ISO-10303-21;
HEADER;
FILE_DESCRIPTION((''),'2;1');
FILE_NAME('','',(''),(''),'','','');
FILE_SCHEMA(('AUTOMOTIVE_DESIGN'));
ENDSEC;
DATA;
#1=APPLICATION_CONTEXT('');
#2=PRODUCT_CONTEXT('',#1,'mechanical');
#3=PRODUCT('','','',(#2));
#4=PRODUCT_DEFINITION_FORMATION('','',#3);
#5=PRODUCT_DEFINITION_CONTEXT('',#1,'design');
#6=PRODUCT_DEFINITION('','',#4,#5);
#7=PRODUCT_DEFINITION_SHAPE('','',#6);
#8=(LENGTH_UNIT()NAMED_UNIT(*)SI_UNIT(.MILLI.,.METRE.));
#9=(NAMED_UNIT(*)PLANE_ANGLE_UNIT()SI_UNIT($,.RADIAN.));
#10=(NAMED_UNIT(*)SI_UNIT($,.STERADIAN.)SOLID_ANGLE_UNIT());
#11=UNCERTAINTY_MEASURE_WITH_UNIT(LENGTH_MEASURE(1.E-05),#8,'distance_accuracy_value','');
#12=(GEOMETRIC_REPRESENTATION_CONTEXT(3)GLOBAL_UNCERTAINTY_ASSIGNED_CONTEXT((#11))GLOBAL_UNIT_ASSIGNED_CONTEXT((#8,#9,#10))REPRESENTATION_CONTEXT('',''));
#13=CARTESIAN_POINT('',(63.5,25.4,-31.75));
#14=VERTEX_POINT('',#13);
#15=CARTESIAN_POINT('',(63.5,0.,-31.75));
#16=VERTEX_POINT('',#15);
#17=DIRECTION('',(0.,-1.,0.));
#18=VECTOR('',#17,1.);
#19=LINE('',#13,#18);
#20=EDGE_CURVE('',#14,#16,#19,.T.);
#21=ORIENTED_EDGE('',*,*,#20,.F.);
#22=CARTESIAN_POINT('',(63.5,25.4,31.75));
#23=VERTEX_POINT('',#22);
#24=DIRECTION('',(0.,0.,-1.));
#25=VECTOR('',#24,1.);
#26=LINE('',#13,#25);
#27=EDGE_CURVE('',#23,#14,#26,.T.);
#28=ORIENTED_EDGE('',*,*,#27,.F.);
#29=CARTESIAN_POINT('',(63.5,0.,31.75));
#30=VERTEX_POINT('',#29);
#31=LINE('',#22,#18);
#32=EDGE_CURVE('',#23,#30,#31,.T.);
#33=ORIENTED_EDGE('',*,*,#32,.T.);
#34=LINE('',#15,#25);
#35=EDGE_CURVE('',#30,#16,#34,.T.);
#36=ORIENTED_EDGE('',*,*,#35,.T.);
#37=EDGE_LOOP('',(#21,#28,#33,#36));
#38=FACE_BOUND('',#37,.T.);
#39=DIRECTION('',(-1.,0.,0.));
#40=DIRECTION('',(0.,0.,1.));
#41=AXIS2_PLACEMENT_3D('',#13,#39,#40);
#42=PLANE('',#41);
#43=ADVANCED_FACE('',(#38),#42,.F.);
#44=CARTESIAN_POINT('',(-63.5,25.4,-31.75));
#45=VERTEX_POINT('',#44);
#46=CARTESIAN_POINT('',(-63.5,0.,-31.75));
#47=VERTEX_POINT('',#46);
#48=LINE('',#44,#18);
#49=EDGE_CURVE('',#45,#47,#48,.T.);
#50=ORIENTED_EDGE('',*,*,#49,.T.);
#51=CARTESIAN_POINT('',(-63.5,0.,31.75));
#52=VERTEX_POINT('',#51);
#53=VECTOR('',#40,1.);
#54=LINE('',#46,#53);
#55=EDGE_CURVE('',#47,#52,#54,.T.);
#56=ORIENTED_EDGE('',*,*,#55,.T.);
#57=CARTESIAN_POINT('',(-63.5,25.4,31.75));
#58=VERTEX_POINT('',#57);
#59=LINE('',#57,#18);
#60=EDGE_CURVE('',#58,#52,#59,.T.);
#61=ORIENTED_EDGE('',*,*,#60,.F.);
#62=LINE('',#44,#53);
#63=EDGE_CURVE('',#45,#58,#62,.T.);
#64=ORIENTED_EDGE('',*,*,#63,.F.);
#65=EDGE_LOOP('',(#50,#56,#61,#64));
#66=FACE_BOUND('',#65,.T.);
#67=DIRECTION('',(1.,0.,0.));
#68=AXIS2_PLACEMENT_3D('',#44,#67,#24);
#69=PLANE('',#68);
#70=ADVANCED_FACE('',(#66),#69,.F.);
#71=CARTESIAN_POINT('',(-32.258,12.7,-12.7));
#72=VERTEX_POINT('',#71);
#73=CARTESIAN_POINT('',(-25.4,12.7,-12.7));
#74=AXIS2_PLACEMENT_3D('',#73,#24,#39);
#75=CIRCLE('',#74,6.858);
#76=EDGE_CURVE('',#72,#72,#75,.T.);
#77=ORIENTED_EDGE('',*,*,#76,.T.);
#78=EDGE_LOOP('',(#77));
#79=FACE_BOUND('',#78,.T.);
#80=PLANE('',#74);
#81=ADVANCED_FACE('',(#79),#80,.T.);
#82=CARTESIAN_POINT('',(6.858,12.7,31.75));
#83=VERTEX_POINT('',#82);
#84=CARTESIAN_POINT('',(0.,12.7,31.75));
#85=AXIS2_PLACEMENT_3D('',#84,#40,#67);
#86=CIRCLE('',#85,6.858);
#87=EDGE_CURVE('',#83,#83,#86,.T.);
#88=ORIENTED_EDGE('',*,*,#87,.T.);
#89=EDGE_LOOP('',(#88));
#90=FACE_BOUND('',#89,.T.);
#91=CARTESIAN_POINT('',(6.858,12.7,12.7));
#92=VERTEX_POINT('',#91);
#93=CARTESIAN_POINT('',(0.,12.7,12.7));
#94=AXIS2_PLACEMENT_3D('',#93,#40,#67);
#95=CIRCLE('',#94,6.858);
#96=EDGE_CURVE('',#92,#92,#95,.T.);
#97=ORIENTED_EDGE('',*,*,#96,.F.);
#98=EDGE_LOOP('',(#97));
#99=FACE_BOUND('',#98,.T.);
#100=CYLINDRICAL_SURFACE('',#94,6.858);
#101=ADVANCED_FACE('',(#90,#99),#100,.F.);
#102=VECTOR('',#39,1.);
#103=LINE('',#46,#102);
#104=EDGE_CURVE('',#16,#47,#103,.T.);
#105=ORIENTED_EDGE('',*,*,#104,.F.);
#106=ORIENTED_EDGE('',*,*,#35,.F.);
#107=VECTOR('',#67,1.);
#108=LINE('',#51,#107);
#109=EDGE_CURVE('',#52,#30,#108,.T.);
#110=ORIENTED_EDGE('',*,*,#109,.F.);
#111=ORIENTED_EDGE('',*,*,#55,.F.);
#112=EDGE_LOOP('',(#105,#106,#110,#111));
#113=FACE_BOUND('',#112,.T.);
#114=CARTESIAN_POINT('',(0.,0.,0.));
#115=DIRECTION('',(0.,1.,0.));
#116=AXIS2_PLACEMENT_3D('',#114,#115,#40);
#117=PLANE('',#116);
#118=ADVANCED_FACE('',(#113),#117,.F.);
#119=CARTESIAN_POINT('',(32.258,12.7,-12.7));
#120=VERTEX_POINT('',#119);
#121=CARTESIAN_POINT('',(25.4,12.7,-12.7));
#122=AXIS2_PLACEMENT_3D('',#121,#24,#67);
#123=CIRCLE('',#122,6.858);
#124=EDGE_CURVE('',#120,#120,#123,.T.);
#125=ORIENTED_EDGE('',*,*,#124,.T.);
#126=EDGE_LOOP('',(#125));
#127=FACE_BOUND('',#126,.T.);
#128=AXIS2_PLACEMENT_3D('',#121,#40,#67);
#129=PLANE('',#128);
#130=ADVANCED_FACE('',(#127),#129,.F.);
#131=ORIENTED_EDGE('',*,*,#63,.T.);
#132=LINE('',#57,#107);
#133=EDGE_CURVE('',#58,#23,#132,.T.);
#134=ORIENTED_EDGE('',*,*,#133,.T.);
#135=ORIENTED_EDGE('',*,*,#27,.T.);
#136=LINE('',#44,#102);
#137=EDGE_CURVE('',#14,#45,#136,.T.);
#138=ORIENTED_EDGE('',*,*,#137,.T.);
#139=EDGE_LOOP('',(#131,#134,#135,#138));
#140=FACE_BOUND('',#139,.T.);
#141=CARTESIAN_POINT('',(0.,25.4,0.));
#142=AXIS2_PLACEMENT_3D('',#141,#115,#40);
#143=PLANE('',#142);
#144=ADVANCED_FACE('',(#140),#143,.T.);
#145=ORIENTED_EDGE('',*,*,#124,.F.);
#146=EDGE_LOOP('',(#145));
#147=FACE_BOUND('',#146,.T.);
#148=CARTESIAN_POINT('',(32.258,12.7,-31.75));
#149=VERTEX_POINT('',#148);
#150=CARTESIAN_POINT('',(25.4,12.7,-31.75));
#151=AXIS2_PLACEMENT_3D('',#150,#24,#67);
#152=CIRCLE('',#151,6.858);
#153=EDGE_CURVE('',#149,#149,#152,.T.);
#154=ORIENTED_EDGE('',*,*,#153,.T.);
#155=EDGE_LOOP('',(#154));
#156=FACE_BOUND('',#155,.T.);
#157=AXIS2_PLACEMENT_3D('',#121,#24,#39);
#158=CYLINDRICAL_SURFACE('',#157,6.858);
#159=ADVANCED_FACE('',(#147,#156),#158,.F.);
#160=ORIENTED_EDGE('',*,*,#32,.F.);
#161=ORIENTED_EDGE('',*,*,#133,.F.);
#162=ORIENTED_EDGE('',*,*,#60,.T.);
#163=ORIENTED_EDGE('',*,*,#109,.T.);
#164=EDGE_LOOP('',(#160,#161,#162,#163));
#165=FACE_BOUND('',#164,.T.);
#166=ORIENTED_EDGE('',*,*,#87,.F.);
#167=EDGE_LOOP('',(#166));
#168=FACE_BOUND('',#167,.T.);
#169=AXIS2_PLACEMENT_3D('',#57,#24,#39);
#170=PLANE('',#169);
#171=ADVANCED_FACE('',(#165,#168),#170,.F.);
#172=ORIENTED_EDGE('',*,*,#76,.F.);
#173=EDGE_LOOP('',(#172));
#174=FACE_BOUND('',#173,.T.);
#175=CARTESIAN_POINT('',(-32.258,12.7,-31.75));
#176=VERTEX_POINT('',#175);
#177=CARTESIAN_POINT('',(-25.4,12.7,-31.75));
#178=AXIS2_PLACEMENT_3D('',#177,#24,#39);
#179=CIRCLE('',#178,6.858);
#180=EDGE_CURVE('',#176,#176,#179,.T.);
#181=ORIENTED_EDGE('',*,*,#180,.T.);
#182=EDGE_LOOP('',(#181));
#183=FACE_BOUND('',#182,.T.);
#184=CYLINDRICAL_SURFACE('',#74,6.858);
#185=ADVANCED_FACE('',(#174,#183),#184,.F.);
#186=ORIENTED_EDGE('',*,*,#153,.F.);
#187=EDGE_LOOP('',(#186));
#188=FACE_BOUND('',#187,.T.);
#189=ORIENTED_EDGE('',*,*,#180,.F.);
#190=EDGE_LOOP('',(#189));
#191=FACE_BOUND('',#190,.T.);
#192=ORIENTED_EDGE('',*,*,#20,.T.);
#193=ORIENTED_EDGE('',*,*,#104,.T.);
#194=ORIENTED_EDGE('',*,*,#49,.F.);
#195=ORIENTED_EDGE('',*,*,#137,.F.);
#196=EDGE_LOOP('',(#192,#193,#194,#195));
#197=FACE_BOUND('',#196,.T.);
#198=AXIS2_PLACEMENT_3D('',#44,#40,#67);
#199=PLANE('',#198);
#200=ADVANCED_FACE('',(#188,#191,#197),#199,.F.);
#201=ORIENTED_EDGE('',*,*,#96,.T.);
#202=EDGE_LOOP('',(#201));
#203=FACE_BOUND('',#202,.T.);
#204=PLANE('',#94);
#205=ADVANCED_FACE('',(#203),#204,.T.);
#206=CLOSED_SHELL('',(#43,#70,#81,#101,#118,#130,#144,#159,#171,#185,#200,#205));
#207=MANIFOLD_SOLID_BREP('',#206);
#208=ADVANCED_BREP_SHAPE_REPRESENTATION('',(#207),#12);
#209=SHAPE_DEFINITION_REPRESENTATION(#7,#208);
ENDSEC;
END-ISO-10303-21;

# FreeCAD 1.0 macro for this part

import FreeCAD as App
import Part
import Sketcher

V = App.Vector
Q = App.Units.Quantity

doc = App.newDocument("Part")
params = doc.addObject("Spreadsheet::Sheet", "Params")
for row, (alias, value) in enumerate([
    ("sketch1_width", "5 in"),
    ("sketch1_height", "2.5 in"),
    ("pad1_length", "1 in"),
    ("sketch2_diameter", "0.54 in"),
    ("pocket1_length", "0.75 in"),
    ("sketch3_diameter", "0.54 in"),
    ("pocket2_length", "0.75 in"),
], start=1):
    params.set(f"A{row}", alias)
    params.set(f"B{row}", "=" + value)
    params.setAlias(f"B{row}", alias)

body = doc.addObject("PartDesign::Body", "Body")

# Sketch on XZ plane
sketch1 = doc.addObject("Sketcher::SketchObject", "Sketch")
body.addObject(sketch1)
sketch1.AttachmentSupport = (doc.XZ_Plane, [""])
sketch1.MapMode = "FlatFace"
sketch1.addGeometry([
    Part.LineSegment(V(-64, -32, 0), V(-64, 32, 0)),
    Part.LineSegment(V(-64, 32, 0), V(64, 32, 0)),
    Part.LineSegment(V(64, 32, 0), V(64, -32, 0)),
    Part.LineSegment(V(64, -32, 0), V(-64, -32, 0)),
], False)
sketch1.addConstraint([
    Sketcher.Constraint("Coincident", 0, 2, 1, 1),
    Sketcher.Constraint("Coincident", 1, 2, 2, 1),
    Sketcher.Constraint("Coincident", 2, 2, 3, 1),
    Sketcher.Constraint("Coincident", 3, 2, 0, 1),
    Sketcher.Constraint("Vertical", 0),
    Sketcher.Constraint("Horizontal", 1),
    Sketcher.Constraint("Vertical", 2),
    Sketcher.Constraint("Horizontal", 3),
    Sketcher.Constraint("Symmetric", 0, 2, 2, 2, -1, 1),
    Sketcher.Constraint("DistanceX", 1, 1, 1, 2, Q("5 in")),
    Sketcher.Constraint("DistanceY", 0, 1, 0, 2, Q("2.5 in")),
])
sketch1.setExpression("Constraints[9]", "Params.sketch1_width")
sketch1.setExpression("Constraints[10]", "Params.sketch1_height")
pad1 = doc.addObject("PartDesign::Pad", "Pad")
body.addObject(pad1)
pad1.Profile = sketch1
pad1.setExpression("Length", "Params.pad1_length")
pad1.Reversed = True

# Sketch on XY plane
sketch2 = doc.addObject("Sketcher::SketchObject", "Sketch001")
body.addObject(sketch2)
sketch2.AttachmentSupport = (doc.XY_Plane, [""])
sketch2.MapMode = "FlatFace"
sketch2.AttachmentOffset = App.Placement(V(0, 0, 1.25 * 25.4), App.Rotation())
sketch2.addGeometry(Part.Circle(V(0, 13, 0), V(0, 0, 1), 7), False)
sketch2.addConstraint([
    Sketcher.Constraint("PointOnObject", 0, 3, -2),
    Sketcher.Constraint("Diameter", 0, Q("0.54 in")),
    Sketcher.Constraint("DistanceY", -1, 1, 0, 3, Q("0.5 in")),
])
sketch2.setExpression("Constraints[1]", "Params.sketch2_diameter")
pocket1 = doc.addObject("PartDesign::Pocket", "Pocket")
body.addObject(pocket1)
pocket1.Profile = sketch2
pocket1.setExpression("Length", "Params.pocket1_length")

# Sketch on XY plane
sketch3 = doc.addObject("Sketcher::SketchObject", "Sketch002")
body.addObject(sketch3)
sketch3.AttachmentSupport = (doc.XY_Plane, [""])
sketch3.MapMode = "FlatFace"
sketch3.AttachmentOffset = App.Placement(V(0, 0, -1.25 * 25.4), App.Rotation())
sketch3.addGeometry([
    Part.Circle(V(-25, 13, 0), V(0, 0, 1), 7),
    Part.Circle(V(25, 13, 0), V(0, 0, 1), 7),
], False)
sketch3.addConstraint([
    Sketcher.Constraint("Equal", 0, 1),
    Sketcher.Constraint("Symmetric", 0, 3, 1, 3, -2),
    Sketcher.Constraint("Diameter", 0, Q("0.54 in")),
    Sketcher.Constraint("DistanceX", 0, 3, -1, 1, Q("1 in")),
    Sketcher.Constraint("DistanceY", -1, 1, 0, 3, Q("0.5 in")),
])
sketch3.setExpression("Constraints[2]", "Params.sketch3_diameter")
pocket2 = doc.addObject("PartDesign::Pocket", "Pocket001")
body.addObject(pocket2)
pocket2.Profile = sketch3
pocket2.setExpression("Length", "Params.pocket2_length")
pocket2.Reversed = True

doc.recompute()
